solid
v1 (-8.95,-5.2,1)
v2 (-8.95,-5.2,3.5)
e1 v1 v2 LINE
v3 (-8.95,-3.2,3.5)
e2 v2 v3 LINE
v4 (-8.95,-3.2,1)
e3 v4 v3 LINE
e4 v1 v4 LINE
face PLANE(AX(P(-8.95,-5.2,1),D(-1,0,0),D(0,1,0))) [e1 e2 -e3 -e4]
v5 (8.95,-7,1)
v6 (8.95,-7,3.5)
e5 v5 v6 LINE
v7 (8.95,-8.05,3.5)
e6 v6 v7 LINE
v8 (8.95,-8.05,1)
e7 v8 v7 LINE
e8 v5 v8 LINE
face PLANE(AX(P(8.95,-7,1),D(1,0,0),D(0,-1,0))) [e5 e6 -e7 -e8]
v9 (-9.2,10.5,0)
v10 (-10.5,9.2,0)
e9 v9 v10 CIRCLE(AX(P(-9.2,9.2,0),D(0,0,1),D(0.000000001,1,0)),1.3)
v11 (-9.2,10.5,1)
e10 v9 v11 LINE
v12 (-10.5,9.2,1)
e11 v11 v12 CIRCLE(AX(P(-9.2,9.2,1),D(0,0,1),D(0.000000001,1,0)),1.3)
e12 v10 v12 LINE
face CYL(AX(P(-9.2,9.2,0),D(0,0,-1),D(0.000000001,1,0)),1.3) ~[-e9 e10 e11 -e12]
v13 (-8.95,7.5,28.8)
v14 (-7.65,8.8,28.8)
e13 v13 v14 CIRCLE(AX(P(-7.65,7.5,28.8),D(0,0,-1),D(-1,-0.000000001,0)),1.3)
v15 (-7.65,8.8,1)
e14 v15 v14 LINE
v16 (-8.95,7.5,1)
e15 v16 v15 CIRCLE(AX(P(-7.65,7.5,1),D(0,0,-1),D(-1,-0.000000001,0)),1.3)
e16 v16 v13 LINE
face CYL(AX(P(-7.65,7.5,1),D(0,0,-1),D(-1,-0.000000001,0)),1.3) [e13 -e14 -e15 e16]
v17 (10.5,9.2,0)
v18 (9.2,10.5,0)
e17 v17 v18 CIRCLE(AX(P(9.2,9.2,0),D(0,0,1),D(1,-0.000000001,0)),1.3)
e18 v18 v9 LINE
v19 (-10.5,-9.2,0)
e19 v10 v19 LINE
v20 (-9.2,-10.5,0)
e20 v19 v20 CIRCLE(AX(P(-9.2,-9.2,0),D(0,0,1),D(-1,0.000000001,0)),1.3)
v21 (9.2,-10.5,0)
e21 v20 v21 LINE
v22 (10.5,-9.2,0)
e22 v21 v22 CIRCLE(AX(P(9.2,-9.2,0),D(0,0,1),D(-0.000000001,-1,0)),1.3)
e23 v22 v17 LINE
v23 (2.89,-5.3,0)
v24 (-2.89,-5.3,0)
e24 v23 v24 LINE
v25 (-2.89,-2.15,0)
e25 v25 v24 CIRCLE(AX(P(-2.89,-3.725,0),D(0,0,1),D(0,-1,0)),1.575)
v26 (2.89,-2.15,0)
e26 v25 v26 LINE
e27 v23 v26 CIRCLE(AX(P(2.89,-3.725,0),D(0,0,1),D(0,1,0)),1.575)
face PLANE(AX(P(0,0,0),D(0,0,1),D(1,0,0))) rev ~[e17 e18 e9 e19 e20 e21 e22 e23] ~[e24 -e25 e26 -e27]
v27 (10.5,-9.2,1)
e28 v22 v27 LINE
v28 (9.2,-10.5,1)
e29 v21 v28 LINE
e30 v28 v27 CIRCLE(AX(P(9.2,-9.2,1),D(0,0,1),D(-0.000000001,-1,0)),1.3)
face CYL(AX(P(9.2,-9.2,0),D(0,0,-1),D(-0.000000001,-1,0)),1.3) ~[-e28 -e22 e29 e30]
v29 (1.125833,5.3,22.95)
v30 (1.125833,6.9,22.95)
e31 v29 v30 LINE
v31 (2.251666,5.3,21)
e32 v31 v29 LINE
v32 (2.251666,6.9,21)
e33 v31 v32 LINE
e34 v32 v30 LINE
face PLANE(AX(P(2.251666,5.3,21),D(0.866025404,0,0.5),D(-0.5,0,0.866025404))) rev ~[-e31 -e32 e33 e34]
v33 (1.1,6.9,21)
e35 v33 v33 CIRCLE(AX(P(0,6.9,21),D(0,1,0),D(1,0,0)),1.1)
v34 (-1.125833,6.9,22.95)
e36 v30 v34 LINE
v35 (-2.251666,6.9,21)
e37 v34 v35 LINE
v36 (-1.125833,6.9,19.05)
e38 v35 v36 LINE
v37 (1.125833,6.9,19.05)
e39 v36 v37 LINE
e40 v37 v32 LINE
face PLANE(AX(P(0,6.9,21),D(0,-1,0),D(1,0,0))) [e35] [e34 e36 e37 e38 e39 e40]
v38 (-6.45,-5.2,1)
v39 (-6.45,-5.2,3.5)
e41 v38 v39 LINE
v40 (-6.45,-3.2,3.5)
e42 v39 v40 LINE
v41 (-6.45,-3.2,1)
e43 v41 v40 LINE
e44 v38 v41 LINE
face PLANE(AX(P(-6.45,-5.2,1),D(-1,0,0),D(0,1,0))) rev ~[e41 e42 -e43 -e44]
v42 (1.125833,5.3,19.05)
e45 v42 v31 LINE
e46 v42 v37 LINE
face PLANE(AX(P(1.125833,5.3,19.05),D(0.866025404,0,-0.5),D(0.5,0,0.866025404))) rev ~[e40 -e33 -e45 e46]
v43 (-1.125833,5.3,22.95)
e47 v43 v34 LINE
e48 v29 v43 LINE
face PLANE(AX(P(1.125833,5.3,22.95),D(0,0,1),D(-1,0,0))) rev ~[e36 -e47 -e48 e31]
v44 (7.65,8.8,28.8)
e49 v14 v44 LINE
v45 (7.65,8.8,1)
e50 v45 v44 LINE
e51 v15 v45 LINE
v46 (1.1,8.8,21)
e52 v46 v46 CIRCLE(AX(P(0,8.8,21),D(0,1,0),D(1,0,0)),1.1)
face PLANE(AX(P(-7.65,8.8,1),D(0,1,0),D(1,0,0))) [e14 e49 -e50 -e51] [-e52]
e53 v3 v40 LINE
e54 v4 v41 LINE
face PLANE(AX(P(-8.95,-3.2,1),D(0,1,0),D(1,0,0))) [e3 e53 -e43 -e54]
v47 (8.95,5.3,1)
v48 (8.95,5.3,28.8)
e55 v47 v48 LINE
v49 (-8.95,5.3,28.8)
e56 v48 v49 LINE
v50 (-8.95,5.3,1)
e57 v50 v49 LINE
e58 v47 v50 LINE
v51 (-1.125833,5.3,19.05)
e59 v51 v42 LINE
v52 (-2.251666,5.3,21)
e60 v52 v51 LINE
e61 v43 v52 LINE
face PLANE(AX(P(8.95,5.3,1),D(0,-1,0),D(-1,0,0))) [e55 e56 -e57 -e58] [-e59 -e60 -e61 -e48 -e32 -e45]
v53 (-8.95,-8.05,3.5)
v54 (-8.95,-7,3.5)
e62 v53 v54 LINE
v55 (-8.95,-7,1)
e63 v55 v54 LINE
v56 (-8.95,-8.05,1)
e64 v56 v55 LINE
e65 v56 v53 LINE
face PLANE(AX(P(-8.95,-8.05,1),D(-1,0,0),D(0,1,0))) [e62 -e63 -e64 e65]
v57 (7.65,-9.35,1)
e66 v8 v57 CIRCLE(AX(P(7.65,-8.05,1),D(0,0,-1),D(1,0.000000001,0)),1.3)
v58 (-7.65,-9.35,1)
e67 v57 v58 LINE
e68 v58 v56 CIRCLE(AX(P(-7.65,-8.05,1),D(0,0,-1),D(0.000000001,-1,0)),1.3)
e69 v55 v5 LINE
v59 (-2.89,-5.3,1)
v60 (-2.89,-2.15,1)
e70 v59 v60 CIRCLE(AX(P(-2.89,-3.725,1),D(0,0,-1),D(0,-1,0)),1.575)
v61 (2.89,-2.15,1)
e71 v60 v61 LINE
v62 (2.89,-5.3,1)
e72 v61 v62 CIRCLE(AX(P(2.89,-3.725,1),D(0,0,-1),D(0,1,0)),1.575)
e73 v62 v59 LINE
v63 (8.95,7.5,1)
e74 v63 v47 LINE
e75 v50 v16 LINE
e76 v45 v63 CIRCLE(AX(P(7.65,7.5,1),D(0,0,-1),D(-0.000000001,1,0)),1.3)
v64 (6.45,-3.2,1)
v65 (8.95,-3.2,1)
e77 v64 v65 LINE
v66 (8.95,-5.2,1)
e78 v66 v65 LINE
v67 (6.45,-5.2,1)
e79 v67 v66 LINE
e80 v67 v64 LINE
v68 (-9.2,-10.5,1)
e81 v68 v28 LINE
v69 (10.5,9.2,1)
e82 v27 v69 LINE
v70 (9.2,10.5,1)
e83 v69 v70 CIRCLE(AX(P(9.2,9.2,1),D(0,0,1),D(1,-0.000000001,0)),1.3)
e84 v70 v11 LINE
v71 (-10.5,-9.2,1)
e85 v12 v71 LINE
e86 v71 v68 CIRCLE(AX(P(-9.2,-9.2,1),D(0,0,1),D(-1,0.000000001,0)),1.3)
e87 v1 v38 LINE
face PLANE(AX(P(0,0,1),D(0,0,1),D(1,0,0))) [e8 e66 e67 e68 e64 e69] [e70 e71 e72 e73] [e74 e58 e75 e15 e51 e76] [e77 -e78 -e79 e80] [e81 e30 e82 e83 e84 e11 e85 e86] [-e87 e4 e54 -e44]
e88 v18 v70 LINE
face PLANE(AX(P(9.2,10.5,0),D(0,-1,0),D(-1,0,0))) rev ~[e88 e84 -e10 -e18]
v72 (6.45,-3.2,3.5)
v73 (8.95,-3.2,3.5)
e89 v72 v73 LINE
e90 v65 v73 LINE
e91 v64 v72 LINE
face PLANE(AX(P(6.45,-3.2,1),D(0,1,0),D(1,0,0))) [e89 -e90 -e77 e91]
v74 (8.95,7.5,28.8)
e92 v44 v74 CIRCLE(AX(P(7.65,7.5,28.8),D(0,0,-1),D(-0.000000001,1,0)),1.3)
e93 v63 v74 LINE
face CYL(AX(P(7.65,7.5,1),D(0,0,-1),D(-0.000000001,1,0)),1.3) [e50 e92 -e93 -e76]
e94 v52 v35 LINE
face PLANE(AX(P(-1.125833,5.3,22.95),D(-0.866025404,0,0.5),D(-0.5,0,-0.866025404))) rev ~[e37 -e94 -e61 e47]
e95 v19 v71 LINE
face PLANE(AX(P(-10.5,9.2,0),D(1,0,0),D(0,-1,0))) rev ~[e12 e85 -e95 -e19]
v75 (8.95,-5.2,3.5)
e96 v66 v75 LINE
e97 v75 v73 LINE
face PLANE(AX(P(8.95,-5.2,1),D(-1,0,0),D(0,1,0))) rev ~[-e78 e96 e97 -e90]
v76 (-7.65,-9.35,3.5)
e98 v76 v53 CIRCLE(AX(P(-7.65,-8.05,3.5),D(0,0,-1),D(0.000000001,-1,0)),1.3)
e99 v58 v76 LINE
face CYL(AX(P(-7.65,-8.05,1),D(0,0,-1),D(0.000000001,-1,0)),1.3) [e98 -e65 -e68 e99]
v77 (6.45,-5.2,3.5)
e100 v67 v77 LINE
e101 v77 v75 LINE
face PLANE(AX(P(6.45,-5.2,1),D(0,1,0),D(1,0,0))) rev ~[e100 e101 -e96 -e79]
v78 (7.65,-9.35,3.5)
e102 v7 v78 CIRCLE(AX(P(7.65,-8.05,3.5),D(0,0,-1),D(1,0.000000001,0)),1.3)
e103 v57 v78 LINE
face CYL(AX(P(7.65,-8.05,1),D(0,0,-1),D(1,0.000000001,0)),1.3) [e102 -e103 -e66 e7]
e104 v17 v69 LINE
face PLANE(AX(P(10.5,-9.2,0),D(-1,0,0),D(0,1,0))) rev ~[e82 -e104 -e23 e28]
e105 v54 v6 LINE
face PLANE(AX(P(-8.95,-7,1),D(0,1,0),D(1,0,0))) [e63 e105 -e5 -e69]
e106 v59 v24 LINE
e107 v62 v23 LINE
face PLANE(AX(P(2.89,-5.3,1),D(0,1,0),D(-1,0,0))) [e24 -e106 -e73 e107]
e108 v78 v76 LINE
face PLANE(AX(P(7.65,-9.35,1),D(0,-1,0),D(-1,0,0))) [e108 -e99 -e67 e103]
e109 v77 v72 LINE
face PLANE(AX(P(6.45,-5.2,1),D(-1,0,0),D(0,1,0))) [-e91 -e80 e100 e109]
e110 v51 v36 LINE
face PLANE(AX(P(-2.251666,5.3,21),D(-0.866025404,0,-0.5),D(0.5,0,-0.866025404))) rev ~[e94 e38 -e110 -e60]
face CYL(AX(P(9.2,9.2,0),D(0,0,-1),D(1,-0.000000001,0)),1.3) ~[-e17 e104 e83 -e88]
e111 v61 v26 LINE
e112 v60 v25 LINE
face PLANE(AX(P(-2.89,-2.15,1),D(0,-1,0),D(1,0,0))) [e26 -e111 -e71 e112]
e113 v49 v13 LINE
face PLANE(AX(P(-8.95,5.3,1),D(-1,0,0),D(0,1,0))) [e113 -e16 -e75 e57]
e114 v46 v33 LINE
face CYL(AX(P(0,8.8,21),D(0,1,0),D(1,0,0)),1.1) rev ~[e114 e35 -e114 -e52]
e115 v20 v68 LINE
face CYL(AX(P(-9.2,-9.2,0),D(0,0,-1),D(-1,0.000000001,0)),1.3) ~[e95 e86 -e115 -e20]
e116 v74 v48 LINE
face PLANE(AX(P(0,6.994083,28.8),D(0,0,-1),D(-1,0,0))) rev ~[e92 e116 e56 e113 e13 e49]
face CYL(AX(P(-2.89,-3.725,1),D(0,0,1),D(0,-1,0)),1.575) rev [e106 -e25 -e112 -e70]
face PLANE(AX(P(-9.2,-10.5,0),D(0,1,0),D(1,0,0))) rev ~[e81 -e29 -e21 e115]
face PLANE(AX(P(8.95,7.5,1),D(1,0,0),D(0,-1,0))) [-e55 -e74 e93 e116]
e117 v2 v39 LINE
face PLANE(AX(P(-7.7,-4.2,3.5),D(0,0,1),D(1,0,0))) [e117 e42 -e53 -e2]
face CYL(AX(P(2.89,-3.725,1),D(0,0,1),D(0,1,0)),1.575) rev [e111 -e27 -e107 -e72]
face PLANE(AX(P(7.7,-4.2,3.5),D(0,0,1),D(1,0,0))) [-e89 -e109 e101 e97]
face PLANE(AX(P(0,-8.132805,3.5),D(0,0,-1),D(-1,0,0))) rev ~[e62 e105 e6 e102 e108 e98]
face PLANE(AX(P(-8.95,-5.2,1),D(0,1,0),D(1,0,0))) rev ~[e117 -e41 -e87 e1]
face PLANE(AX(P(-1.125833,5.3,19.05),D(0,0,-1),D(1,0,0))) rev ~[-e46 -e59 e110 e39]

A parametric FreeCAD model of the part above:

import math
import FreeCAD as App
import Part
import Sketcher
from FreeCAD import Vector
Q = App.Units.Quantity

doc = App.newDocument("Part")
body = doc.addObject("PartDesign::Body", "Body")

sketch1 = body.newObject("Sketcher::SketchObject", "Sketch")
sketch1.AttachmentSupport = (doc.getObject("XY_Plane"), [""])
sketch1.MapMode = "FlatFace"
sketch1.addGeometry([
    Part.LineSegment(Vector(-9.2, -10.5, 0), Vector(9.2, -10.5, 0)),
    Part.ArcOfCircle(Part.Circle(Vector(9.2, -9.2, 0), Vector(0, 0, 1), 1.3), math.radians(-90), math.radians(0)),
    Part.LineSegment(Vector(10.5, -9.2, 0), Vector(10.5, 9.2, 0)),
    Part.ArcOfCircle(Part.Circle(Vector(9.2, 9.2, 0), Vector(0, 0, 1), 1.3), math.radians(0), math.radians(90)),
    Part.LineSegment(Vector(9.2, 10.5, 0), Vector(-9.2, 10.5, 0)),
    Part.ArcOfCircle(Part.Circle(Vector(-9.2, 9.2, 0), Vector(0, 0, 1), 1.3), math.radians(90), math.radians(180)),
    Part.LineSegment(Vector(-10.5, 9.2, 0), Vector(-10.5, -9.2, 0)),
    Part.ArcOfCircle(Part.Circle(Vector(-9.2, -9.2, 0), Vector(0, 0, 1), 1.3), math.radians(180), math.radians(270)),
], False)
sketch1.addConstraint([
    Sketcher.Constraint("Tangent", 0, 2, 1, 1),
    Sketcher.Constraint("Tangent", 1, 2, 2, 1),
    Sketcher.Constraint("Tangent", 2, 2, 3, 1),
    Sketcher.Constraint("Tangent", 3, 2, 4, 1),
    Sketcher.Constraint("Tangent", 4, 2, 5, 1),
    Sketcher.Constraint("Tangent", 5, 2, 6, 1),
    Sketcher.Constraint("Tangent", 6, 2, 7, 1),
    Sketcher.Constraint("Tangent", 7, 2, 0, 1),
    Sketcher.Constraint("Horizontal", 0),
    Sketcher.Constraint("Vertical", 2),
    Sketcher.Constraint("Horizontal", 4),
    Sketcher.Constraint("Vertical", 6),
    Sketcher.Constraint("Equal", 1, 3),
    Sketcher.Constraint("Equal", 3, 5),
    Sketcher.Constraint("Equal", 5, 7),
    Sketcher.Constraint("Symmetric", 1, 3, 5, 3, -1, 1),
    Sketcher.Constraint("Equal", 4, 2),
    Sketcher.Constraint("Radius", 1, 1.3),
    Sketcher.Constraint("DistanceX", 0, 1, 0, 2, 18.4),
])
pad1 = body.newObject("PartDesign::Pad", "Pad")
pad1.Profile = sketch1
pad1.Length = 1

sketch2 = body.newObject("Sketcher::SketchObject", "Sketch001")
sketch2.AttachmentSupport = (doc.getObject("XY_Plane"), [""])
sketch2.MapMode = "FlatFace"
sketch2.AttachmentOffset = App.Placement(Vector(0, 0, 1), App.Rotation())
sketch2.addGeometry([
    Part.LineSegment(Vector(6.5, -3.2, 0), Vector(6.5, -5.2, 0)),
    Part.LineSegment(Vector(6.5, -5.2, 0), Vector(8.9, -5.2, 0)),
    Part.LineSegment(Vector(8.9, -5.2, 0), Vector(8.9, -3.2, 0)),
    Part.LineSegment(Vector(8.9, -3.2, 0), Vector(6.5, -3.2, 0)),
    Part.LineSegment(Vector(-8.9, -3.2, 0), Vector(-8.9, -5.2, 0)),
    Part.LineSegment(Vector(-8.9, -5.2, 0), Vector(-6.5, -5.2, 0)),
    Part.LineSegment(Vector(-6.5, -5.2, 0), Vector(-6.5, -3.2, 0)),
    Part.LineSegment(Vector(-6.5, -3.2, 0), Vector(-8.9, -3.2, 0)),
    Part.LineSegment(Vector(8.9, -7, 0), Vector(-8.9, -7, 0)),
    Part.LineSegment(Vector(-8.9, -7, 0), Vector(-8.9, -8.1, 0)),
    Part.ArcOfCircle(Part.Circle(Vector(-7.7, -8.1, 0), Vector(0, 0, 1), 1.3), math.radians(180), math.radians(270)),
    Part.LineSegment(Vector(-7.7, -9.3, 0), Vector(7.7, -9.3, 0)),
    Part.ArcOfCircle(Part.Circle(Vector(7.7, -8.1, 0), Vector(0, 0, 1), 1.3), math.radians(-90), math.radians(0)),
    Part.LineSegment(Vector(8.9, -8.1, 0), Vector(8.9, -7, 0)),
], False)
sketch2.addConstraint([
    Sketcher.Constraint("Coincident", 0, 2, 1, 1),
    Sketcher.Constraint("Coincident", 1, 2, 2, 1),
    Sketcher.Constraint("Coincident", 2, 2, 3, 1),
    Sketcher.Constraint("Coincident", 3, 2, 0, 1),
    Sketcher.Constraint("Coincident", 4, 2, 5, 1),
    Sketcher.Constraint("Coincident", 5, 2, 6, 1),
    Sketcher.Constraint("Coincident", 6, 2, 7, 1),
    Sketcher.Constraint("Coincident", 7, 2, 4, 1),
    Sketcher.Constraint("Coincident", 8, 2, 9, 1),
    Sketcher.Constraint("Tangent", 9, 2, 10, 1),
    Sketcher.Constraint("Tangent", 10, 2, 11, 1),
    Sketcher.Constraint("Tangent", 11, 2, 12, 1),
    Sketcher.Constraint("Tangent", 12, 2, 13, 1),
    Sketcher.Constraint("Coincident", 13, 2, 8, 1),
    Sketcher.Constraint("Vertical", 0),
    Sketcher.Constraint("Horizontal", 1),
    Sketcher.Constraint("Vertical", 2),
    Sketcher.Constraint("Horizontal", 3),
    Sketcher.Constraint("Vertical", 4),
    Sketcher.Constraint("Horizontal", 5),
    Sketcher.Constraint("Vertical", 6),
    Sketcher.Constraint("Horizontal", 7),
    Sketcher.Constraint("Horizontal", 8),
    Sketcher.Constraint("Vertical", 9),
    Sketcher.Constraint("Horizontal", 11),
    Sketcher.Constraint("Vertical", 13),
    Sketcher.Constraint("Equal", 10, 12),
    Sketcher.Constraint("Symmetric", 1, 2, 4, 2, -2),
    Sketcher.Constraint("Symmetric", 3, 2, 6, 2, -2),
    Sketcher.Constraint("Vertical", 7, 2, 8, 2),
    Sketcher.Constraint("Vertical", 2, 2, 12, 2),
    Sketcher.Constraint("Radius", 10, 1.3),
    Sketcher.Constraint("DistanceY", 0, 2, 0, 1, 2.0),
    Sketcher.Constraint("DistanceX", 1, 1, 1, 2, 2.5),
    Sketcher.Constraint("DistanceX", 8, 2, 8, 1, 17.9),
    Sketcher.Constraint("DistanceY", 8, 2, -1, 1, 7.0),
    Sketcher.Constraint("DistanceY", 9, 2, 9, 1, 1.05),
    Sketcher.Constraint("DistanceY", 0, 2, -1, 1, 5.2),
])
pad2 = body.newObject("PartDesign::Pad", "Pad001")
pad2.Profile = sketch2
pad2.Length = 2.5

sketch3 = body.newObject("Sketcher::SketchObject", "Sketch002")
sketch3.AttachmentSupport = (doc.getObject("XY_Plane"), [""])
sketch3.MapMode = "FlatFace"
sketch3.AttachmentOffset = App.Placement(Vector(0, 0, 1), App.Rotation())
sketch3.addGeometry([
    Part.LineSegment(Vector(2.9, -2.1, 0), Vector(-2.9, -2.1, 0)),
    Part.ArcOfCircle(Part.Circle(Vector(-2.9, -3.7, 0), Vector(0, 0, 1), 1.6), math.radians(90), math.radians(270)),
    Part.LineSegment(Vector(-2.9, -5.3, 0), Vector(2.9, -5.3, 0)),
    Part.ArcOfCircle(Part.Circle(Vector(2.9, -3.7, 0), Vector(0, 0, 1), 1.6), math.radians(-90), math.radians(90)),
], False)
sketch3.addConstraint([
    Sketcher.Constraint("Tangent", 0, 2, 1, 1),
    Sketcher.Constraint("Tangent", 1, 2, 2, 1),
    Sketcher.Constraint("Tangent", 2, 2, 3, 1),
    Sketcher.Constraint("Tangent", 3, 2, 0, 1),
    Sketcher.Constraint("Horizontal", 0),
    Sketcher.Constraint("Horizontal", 2),
    Sketcher.Constraint("Radius", 1, 1.575),
    Sketcher.Constraint("DistanceX", 0, 2, 0, 1, 5.78),
    Sketcher.Constraint("DistanceY", 1, 2, -1, 1, 5.3),
    Sketcher.Constraint("DistanceX", 1, 3, -1, 1, 2.89),
])
pocket1 = body.newObject("PartDesign::Pocket", "Pocket")
pocket1.Profile = sketch3
pocket1.Type = "ThroughAll"

sketch4 = body.newObject("Sketcher::SketchObject", "Sketch003")
sketch4.AttachmentSupport = (doc.getObject("XY_Plane"), [""])
sketch4.MapMode = "FlatFace"
sketch4.AttachmentOffset = App.Placement(Vector(0, 0, 1), App.Rotation())
sketch4.addGeometry([
    Part.LineSegment(Vector(7.7, 8.8, 0), Vector(-7.7, 8.8, 0)),
    Part.ArcOfCircle(Part.Circle(Vector(-7.7, 7.5, 0), Vector(0, 0, 1), 1.3), math.radians(90), math.radians(180)),
    Part.LineSegment(Vector(-8.9, 7.5, 0), Vector(-8.9, 5.3, 0)),
    Part.LineSegment(Vector(-8.9, 5.3, 0), Vector(8.9, 5.3, 0)),
    Part.LineSegment(Vector(8.9, 5.3, 0), Vector(8.9, 7.5, 0)),
    Part.ArcOfCircle(Part.Circle(Vector(7.7, 7.5, 0), Vector(0, 0, 1), 1.3), math.radians(0), math.radians(90)),
], False)
sketch4.addConstraint([
    Sketcher.Constraint("Tangent", 0, 2, 1, 1),
    Sketcher.Constraint("Tangent", 1, 2, 2, 1),
    Sketcher.Constraint("Coincident", 2, 2, 3, 1),
    Sketcher.Constraint("Coincident", 3, 2, 4, 1),
    Sketcher.Constraint("Tangent", 4, 2, 5, 1),
    Sketcher.Constraint("Tangent", 5, 2, 0, 1),
    Sketcher.Constraint("Horizontal", 0),
    Sketcher.Constraint("Vertical", 2),
    Sketcher.Constraint("Horizontal", 3),
    Sketcher.Constraint("Vertical", 4),
    Sketcher.Constraint("Equal", 1, 5),
    Sketcher.Constraint("Radius", 1, 1.3),
    Sketcher.Constraint("DistanceX", 0, 2, 0, 1, 15.3),
    Sketcher.Constraint("DistanceY", 2, 2, 2, 1, 2.2),
    Sketcher.Constraint("DistanceY", -1, 1, 1, 3, 7.5),
    Sketcher.Constraint("DistanceX", 1, 3, -1, 1, 7.65),
])
pad3 = body.newObject("PartDesign::Pad", "Pad002")
pad3.Profile = sketch4
pad3.Length = 27.8

sketch5 = body.newObject("Sketcher::SketchObject", "Sketch004")
sketch5.AttachmentSupport = (doc.getObject("XZ_Plane"), [""])
sketch5.MapMode = "FlatFace"
sketch5.AttachmentOffset = App.Placement(Vector(0, 0, -8.8), App.Rotation())
sketch5.addGeometry(Part.Circle(Vector(0, 21, 0), Vector(0, 0, 1), 1.1), False)
sketch5.addConstraint([
    Sketcher.Constraint("PointOnObject", 0, 3, -2),
    Sketcher.Constraint("Diameter", 0, 2.2),
    Sketcher.Constraint("DistanceY", -1, 1, 0, 3, 21.0),
])
pocket2 = body.newObject("PartDesign::Pocket", "Pocket001")
pocket2.Profile = sketch5
pocket2.Type = "ThroughAll"
pocket2.Reversed = True

sketch6 = body.newObject("Sketcher::SketchObject", "Sketch005")
sketch6.AttachmentSupport = (doc.getObject("XZ_Plane"), [""])
sketch6.MapMode = "FlatFace"
sketch6.AttachmentOffset = App.Placement(Vector(0, 0, -5.3), App.Rotation())
sketch6.addGeometry([
    Part.LineSegment(Vector(1.1, 22.9, 0), Vector(-1.1, 22.9, 0)),
    Part.LineSegment(Vector(-1.1, 22.9, 0), Vector(-2.3, 21, 0)),
    Part.LineSegment(Vector(-2.3, 21, 0), Vector(-1.1, 19.1, 0)),
    Part.LineSegment(Vector(-1.1, 19.1, 0), Vector(1.1, 19.1, 0)),
    Part.LineSegment(Vector(1.1, 19.1, 0), Vector(2.3, 21, 0)),
    Part.LineSegment(Vector(2.3, 21, 0), Vector(1.1, 22.9, 0)),
], False)
sketch6.addConstraint([
    Sketcher.Constraint("Coincident", 0, 2, 1, 1),
    Sketcher.Constraint("Coincident", 1, 2, 2, 1),
    Sketcher.Constraint("Coincident", 2, 2, 3, 1),
    Sketcher.Constraint("Coincident", 3, 2, 4, 1),
    Sketcher.Constraint("Coincident", 4, 2, 5, 1),
    Sketcher.Constraint("Coincident", 5, 2, 0, 1),
    Sketcher.Constraint("Horizontal", 0),
    Sketcher.Constraint("Horizontal", 3),
    Sketcher.Constraint("Symmetric", 1, 2, 4, 2, -2),
    Sketcher.Constraint("Parallel", 1, 4),
    Sketcher.Constraint("Parallel", 2, 5),
    Sketcher.Constraint("Vertical", 0, 2, 2, 2),
    Sketcher.Constraint("Vertical", 3, 2, 5, 2),
    Sketcher.Constraint("Angle", 1, Q("-120 deg")),
    Sketcher.Constraint("DistanceY", -1, 1, 1, 2, 21.0),
    Sketcher.Constraint("DistanceY", 2, 2, 0, 2, 3.9),
    Sketcher.Constraint("DistanceX", 1, 2, 3, 2, 3.377499),
])
pocket3 = body.newObject("PartDesign::Pocket", "Pocket002")
pocket3.Profile = sketch6
pocket3.Length = 1.6

doc.recompute()
